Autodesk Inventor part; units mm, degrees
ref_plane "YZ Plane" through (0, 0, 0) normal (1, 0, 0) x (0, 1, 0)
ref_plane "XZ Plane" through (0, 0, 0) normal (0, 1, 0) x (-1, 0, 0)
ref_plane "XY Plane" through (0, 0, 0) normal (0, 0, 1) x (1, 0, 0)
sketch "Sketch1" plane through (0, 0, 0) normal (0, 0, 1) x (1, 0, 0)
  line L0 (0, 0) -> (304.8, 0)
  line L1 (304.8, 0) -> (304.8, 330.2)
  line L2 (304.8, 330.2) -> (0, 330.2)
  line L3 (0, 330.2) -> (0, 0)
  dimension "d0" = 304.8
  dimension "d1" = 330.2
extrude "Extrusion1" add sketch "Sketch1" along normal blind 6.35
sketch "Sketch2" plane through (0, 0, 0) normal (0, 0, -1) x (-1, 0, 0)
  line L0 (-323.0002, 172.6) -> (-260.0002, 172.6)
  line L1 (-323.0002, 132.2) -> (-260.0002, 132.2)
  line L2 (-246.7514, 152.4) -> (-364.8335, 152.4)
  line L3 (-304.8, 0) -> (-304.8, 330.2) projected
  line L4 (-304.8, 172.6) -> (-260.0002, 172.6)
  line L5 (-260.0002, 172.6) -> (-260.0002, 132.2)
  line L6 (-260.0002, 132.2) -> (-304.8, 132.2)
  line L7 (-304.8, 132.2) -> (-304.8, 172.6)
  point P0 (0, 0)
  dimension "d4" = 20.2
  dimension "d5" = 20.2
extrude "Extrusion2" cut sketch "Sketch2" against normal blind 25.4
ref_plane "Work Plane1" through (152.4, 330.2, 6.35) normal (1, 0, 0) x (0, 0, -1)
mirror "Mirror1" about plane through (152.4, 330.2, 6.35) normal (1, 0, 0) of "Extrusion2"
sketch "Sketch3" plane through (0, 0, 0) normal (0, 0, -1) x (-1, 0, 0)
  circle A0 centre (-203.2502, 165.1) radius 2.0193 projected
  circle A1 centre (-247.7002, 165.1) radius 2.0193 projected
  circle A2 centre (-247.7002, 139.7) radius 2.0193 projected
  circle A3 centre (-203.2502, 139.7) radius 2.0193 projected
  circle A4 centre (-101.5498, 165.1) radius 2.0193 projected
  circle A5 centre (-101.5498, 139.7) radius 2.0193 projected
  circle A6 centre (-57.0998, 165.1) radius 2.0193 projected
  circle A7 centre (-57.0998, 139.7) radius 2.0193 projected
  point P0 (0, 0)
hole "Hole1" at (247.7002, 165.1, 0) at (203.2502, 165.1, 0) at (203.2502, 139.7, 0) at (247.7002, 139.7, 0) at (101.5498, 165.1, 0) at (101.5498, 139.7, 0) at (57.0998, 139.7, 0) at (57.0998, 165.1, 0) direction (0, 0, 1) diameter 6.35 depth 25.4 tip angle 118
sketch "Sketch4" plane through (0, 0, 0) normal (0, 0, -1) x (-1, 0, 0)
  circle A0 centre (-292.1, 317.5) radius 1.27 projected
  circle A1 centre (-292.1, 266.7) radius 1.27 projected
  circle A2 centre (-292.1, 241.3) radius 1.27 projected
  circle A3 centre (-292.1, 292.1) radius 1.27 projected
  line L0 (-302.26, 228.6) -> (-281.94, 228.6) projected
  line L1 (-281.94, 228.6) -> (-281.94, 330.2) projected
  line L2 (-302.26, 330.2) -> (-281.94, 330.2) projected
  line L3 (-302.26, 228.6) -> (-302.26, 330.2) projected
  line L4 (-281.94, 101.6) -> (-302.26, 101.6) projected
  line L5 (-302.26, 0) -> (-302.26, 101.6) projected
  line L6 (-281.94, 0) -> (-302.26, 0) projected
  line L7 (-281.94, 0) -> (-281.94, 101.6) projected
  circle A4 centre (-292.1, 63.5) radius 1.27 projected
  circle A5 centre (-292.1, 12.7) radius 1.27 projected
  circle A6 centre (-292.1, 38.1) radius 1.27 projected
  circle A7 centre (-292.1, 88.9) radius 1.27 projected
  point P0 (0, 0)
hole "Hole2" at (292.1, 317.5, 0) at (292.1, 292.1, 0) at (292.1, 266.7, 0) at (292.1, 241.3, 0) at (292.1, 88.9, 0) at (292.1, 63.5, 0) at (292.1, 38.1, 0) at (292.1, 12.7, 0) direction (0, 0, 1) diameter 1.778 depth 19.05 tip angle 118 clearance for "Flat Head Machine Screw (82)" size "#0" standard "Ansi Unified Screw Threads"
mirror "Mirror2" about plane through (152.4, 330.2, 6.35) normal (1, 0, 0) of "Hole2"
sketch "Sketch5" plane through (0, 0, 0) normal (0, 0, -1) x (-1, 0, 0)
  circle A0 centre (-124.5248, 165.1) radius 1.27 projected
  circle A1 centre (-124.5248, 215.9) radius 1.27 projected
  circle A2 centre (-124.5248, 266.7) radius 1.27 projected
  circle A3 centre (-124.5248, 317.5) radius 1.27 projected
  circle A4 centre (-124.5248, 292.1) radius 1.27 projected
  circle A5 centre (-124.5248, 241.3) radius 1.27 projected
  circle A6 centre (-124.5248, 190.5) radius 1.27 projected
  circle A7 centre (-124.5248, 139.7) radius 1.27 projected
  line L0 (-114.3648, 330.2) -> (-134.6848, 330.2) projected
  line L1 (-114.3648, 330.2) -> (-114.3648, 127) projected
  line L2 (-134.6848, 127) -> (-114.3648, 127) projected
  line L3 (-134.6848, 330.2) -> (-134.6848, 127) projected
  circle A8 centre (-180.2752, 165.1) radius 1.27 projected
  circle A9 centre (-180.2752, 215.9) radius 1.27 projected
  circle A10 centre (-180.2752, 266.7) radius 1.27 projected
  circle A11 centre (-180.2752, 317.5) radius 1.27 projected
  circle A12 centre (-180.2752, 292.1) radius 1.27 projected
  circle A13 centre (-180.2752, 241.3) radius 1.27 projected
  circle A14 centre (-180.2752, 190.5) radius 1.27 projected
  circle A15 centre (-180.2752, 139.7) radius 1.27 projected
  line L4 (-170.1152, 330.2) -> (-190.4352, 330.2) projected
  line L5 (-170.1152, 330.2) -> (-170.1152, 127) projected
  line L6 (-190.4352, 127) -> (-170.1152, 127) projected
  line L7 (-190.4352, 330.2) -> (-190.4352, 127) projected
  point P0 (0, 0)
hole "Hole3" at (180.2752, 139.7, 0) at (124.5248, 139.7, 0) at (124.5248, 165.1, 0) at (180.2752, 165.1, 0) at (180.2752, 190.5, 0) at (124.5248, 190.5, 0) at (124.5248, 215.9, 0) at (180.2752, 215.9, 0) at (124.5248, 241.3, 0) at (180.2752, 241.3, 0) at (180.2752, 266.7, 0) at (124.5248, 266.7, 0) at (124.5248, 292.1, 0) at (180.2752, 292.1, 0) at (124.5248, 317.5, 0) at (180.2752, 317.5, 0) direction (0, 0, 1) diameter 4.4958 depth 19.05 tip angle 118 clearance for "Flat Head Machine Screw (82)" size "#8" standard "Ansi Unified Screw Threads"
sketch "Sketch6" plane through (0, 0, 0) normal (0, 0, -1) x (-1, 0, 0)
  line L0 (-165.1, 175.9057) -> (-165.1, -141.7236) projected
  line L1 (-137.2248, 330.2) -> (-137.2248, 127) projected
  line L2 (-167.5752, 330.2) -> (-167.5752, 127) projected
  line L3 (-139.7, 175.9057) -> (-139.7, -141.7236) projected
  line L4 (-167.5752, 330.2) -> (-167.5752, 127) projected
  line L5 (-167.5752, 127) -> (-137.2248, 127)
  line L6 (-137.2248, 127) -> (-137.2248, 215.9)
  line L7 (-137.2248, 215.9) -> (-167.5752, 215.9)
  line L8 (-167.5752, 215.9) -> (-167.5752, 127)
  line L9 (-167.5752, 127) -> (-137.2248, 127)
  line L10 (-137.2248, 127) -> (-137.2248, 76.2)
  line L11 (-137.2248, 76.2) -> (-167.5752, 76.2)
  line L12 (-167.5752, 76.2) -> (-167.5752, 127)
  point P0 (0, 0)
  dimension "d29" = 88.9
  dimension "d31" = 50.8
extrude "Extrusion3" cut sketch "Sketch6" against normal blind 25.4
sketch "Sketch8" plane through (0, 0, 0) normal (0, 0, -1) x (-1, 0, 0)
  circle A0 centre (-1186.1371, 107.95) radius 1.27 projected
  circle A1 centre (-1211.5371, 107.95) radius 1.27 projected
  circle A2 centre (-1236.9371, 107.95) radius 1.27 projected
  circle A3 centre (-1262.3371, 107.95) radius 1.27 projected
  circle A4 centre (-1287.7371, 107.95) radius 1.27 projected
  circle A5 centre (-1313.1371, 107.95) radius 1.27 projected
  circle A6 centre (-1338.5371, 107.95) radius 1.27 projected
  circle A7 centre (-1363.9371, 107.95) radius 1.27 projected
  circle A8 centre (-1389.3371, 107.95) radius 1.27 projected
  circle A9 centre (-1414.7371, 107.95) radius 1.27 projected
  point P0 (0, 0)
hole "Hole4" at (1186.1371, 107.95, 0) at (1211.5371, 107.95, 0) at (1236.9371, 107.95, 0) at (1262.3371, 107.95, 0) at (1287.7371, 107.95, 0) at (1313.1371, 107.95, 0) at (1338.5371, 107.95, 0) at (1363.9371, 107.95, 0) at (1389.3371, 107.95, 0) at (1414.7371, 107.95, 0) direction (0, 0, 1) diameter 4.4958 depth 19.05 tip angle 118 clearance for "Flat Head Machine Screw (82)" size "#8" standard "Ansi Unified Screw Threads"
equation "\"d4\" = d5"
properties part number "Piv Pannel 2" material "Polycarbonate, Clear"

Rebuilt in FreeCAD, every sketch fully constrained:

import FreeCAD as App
import Part
import Sketcher
Q = App.Units.Quantity


def add_polygon(sketch, points):
    """Adds a closed chain of lines whose ends are joined by coincident constraints."""
    first, n = sketch.GeometryCount, len(points)
    for a, b in zip(points, points[1:] + points[:1]):
        sketch.addGeometry(Part.LineSegment(App.Vector(*a, 0), App.Vector(*b, 0)), False)
    for i in range(n):
        sketch.addConstraint(Sketcher.Constraint("Coincident", first + i, 2, first + (i + 1) % n, 1))

doc = App.newDocument("Part")
body = doc.addObject("PartDesign::Body", "Body")

sketch1 = doc.addObject("Sketcher::SketchObject", "Sketch")
body.addObject(sketch1)
sketch1.AttachmentSupport = (doc.XY_Plane, [""])
sketch1.MapMode = "FlatFace"
add_polygon(sketch1, [(0, 330), (0, 0), (305, 0), (305, 330)])
sketch1.addConstraint([
    Sketcher.Constraint("Vertical", 0),
    Sketcher.Constraint("Horizontal", 1),
    Sketcher.Constraint("Vertical", 2),
    Sketcher.Constraint("Horizontal", 3),
    Sketcher.Constraint("Coincident", 0, 2, -1, 1),
    Sketcher.Constraint("DistanceX", 1, 1, 1, 2, Q("12 in")),
    Sketcher.Constraint("DistanceY", 0, 2, 0, 1, Q("13 in")),
])
pad1 = doc.addObject("PartDesign::Pad", "Pad")
body.addObject(pad1)
pad1.Profile = sketch1
pad1.Length = Q("0.25 in")

sketch2 = doc.addObject("Sketcher::SketchObject", "Sketch001")
body.addObject(sketch2)
sketch2.AttachmentSupport = (doc.XY_Plane, [""])
sketch2.MapMode = "FlatFace"
add_polygon(sketch2, [(260, 173), (305, 173), (305, 132), (260, 132)])
sketch2.addConstraint([
    Sketcher.Constraint("Horizontal", 0),
    Sketcher.Constraint("Vertical", 1),
    Sketcher.Constraint("Horizontal", 2),
    Sketcher.Constraint("Vertical", 3),
    Sketcher.Constraint("DistanceX", -1, 1, 0, 2, Q("12 in")),
    Sketcher.Constraint("DistanceX", 0, 1, 0, 2, Q("44.7998 mm")),
    Sketcher.Constraint("DistanceY", 1, 2, 1, 1, Q("40.4 mm")),
    Sketcher.Constraint("DistanceY", -1, 1, 0, 2, Q("172.6 mm")),
])
pocket1 = doc.addObject("PartDesign::Pocket", "Pocket")
body.addObject(pocket1)
pocket1.Profile = sketch2
pocket1.Length = Q("1 in")
pocket1.Reversed = True
doc.recompute()

datumplane = doc.addObject("PartDesign::Plane", "DatumPlane")
body.addObject(datumplane)
datumplane.AttachmentSupport = (doc.YZ_Plane, [""])
datumplane.MapMode = "FlatFace"
datumplane.AttachmentOffset = App.Placement(App.Vector(0, 0, 6 * 25.4), App.Rotation())
mirrored = doc.addObject("PartDesign::Mirrored", "Mirrored")
body.addObject(mirrored)
mirrored.Originals = [pocket1]
mirrored.MirrorPlane = (datumplane, [""])
body.Tip = mirrored

sketch3 = doc.addObject("Sketcher::SketchObject", "Sketch002")
body.addObject(sketch3)
sketch3.AttachmentSupport = (doc.XY_Plane, [""])
sketch3.MapMode = "FlatFace"
sketch3.addGeometry([
    Part.Circle(App.Vector(247.7, 165.1, 0), App.Vector(0, 0, 1), 3.2),
    Part.Circle(App.Vector(203.3, 165.1, 0), App.Vector(0, 0, 1), 3.2),
    Part.Circle(App.Vector(203.3, 139.7, 0), App.Vector(0, 0, 1), 3.2),
    Part.Circle(App.Vector(247.7, 139.7, 0), App.Vector(0, 0, 1), 3.2),
    Part.Circle(App.Vector(101.5, 165.1, 0), App.Vector(0, 0, 1), 3.2),
    Part.Circle(App.Vector(101.5, 139.7, 0), App.Vector(0, 0, 1), 3.2),
    Part.Circle(App.Vector(57.1, 139.7, 0), App.Vector(0, 0, 1), 3.2),
    Part.Circle(App.Vector(57.1, 165.1, 0), App.Vector(0, 0, 1), 3.2),
], False)
sketch3.addConstraint([
    Sketcher.Constraint("Equal", 0, 1),
    Sketcher.Constraint("Equal", 1, 2),
    Sketcher.Constraint("Equal", 2, 3),
    Sketcher.Constraint("Equal", 3, 4),
    Sketcher.Constraint("Equal", 4, 5),
    Sketcher.Constraint("Equal", 5, 6),
    Sketcher.Constraint("Equal", 6, 7),
    Sketcher.Constraint("Horizontal", 0, 3, 1, 3),
    Sketcher.Constraint("Horizontal", 2, 3, 3, 3),
    Sketcher.Constraint("Horizontal", 1, 3, 4, 3),
    Sketcher.Constraint("Horizontal", 3, 3, 5, 3),
    Sketcher.Constraint("Horizontal", 5, 3, 6, 3),
    Sketcher.Constraint("Horizontal", 4, 3, 7, 3),
    Sketcher.Constraint("Vertical", 1, 3, 2, 3),
    Sketcher.Constraint("Vertical", 0, 3, 3, 3),
    Sketcher.Constraint("Vertical", 4, 3, 5, 3),
    Sketcher.Constraint("Vertical", 6, 3, 7, 3),
    Sketcher.Constraint("Diameter", 0, Q("0.25 in")),
    Sketcher.Constraint("DistanceY", 2, 3, 1, 3, Q("1 in")),
    Sketcher.Constraint("DistanceY", -1, 1, 0, 3, Q("6.5 in")),
    Sketcher.Constraint("DistanceX", 1, 3, 0, 3, Q("1.75 in")),
    Sketcher.Constraint("DistanceX", 6, 3, 5, 3, Q("1.75 in")),
    Sketcher.Constraint("DistanceX", -1, 1, 0, 3, Q("247.7002 mm")),
    Sketcher.Constraint("DistanceX", -1, 1, 4, 3, Q("101.5498 mm")),
])
doc.recompute()
hole = doc.addObject("PartDesign::Hole", "Hole")
body.addObject(hole)
hole.Profile = sketch3
hole.ThreadType = "None"
hole.Diameter = Q("0.25 in")
hole.DepthType = "Dimension"
hole.Depth = Q("1 in")
hole.DrillPoint = "Angled"
hole.DrillPointAngle = 118
hole.Reversed = True

sketch4 = doc.addObject("Sketcher::SketchObject", "Sketch003")
body.addObject(sketch4)
sketch4.AttachmentSupport = (doc.XY_Plane, [""])
sketch4.MapMode = "FlatFace"
sketch4.addGeometry([
    Part.Circle(App.Vector(292.1, 317.5, 0), App.Vector(0, 0, 1), 0.9),
    Part.Circle(App.Vector(292.1, 292.1, 0), App.Vector(0, 0, 1), 0.9),
    Part.Circle(App.Vector(292.1, 266.7, 0), App.Vector(0, 0, 1), 0.9),
    Part.Circle(App.Vector(292.1, 241.3, 0), App.Vector(0, 0, 1), 0.9),
    Part.Circle(App.Vector(292.1, 88.9, 0), App.Vector(0, 0, 1), 0.9),
    Part.Circle(App.Vector(292.1, 63.5, 0), App.Vector(0, 0, 1), 0.9),
    Part.Circle(App.Vector(292.1, 38.1, 0), App.Vector(0, 0, 1), 0.9),
    Part.Circle(App.Vector(292.1, 12.7, 0), App.Vector(0, 0, 1), 0.9),
], False)
sketch4.addConstraint([
    Sketcher.Constraint("Equal", 0, 1),
    Sketcher.Constraint("Equal", 1, 2),
    Sketcher.Constraint("Equal", 2, 3),
    Sketcher.Constraint("Equal", 3, 4),
    Sketcher.Constraint("Equal", 4, 5),
    Sketcher.Constraint("Equal", 5, 6),
    Sketcher.Constraint("Equal", 6, 7),
    Sketcher.Constraint("Vertical", 0, 3, 1, 3),
    Sketcher.Constraint("Vertical", 1, 3, 2, 3),
    Sketcher.Constraint("Vertical", 2, 3, 3, 3),
    Sketcher.Constraint("Vertical", 3, 3, 4, 3),
    Sketcher.Constraint("Vertical", 4, 3, 5, 3),
    Sketcher.Constraint("Vertical", 5, 3, 6, 3),
    Sketcher.Constraint("Vertical", 6, 3, 7, 3),
    Sketcher.Constraint("Diameter", 0, Q("0.07 in")),
    Sketcher.Constraint("DistanceY", 1, 3, 0, 3, Q("1 in")),
    Sketcher.Constraint("DistanceY", 2, 3, 1, 3, Q("1 in")),
    Sketcher.Constraint("DistanceY", 3, 3, 2, 3, Q("1 in")),
    Sketcher.Constraint("DistanceY", 4, 3, 3, 3, Q("6 in")),
    Sketcher.Constraint("DistanceY", 5, 3, 4, 3, Q("1 in")),
    Sketcher.Constraint("DistanceY", 6, 3, 5, 3, Q("1 in")),
    Sketcher.Constraint("DistanceY", 7, 3, 6, 3, Q("1 in")),
    Sketcher.Constraint("DistanceX", -1, 1, 0, 3, Q("11.5 in")),
    Sketcher.Constraint("DistanceY", -1, 1, 0, 3, Q("12.5 in")),
])
doc.recompute()
hole2 = doc.addObject("PartDesign::Hole", "Hole001")
body.addObject(hole2)
hole2.Profile = sketch4
hole2.ThreadType = "None"
hole2.Diameter = Q("0.07 in")
hole2.DepthType = "Dimension"
hole2.Depth = Q("0.75 in")
hole2.DrillPoint = "Angled"
hole2.DrillPointAngle = 118
hole2.Reversed = True
doc.recompute()

datumplane2 = doc.addObject("PartDesign::Plane", "DatumPlane001")
body.addObject(datumplane2)
datumplane2.AttachmentSupport = (doc.YZ_Plane, [""])
datumplane2.MapMode = "FlatFace"
datumplane2.AttachmentOffset = App.Placement(App.Vector(0, 0, 6 * 25.4), App.Rotation())
mirrored2 = doc.addObject("PartDesign::Mirrored", "Mirrored001")
body.addObject(mirrored2)
mirrored2.Originals = [hole2]
mirrored2.MirrorPlane = (datumplane2, [""])
body.Tip = mirrored2

sketch5 = doc.addObject("Sketcher::SketchObject", "Sketch004")
body.addObject(sketch5)
sketch5.AttachmentSupport = (doc.XY_Plane, [""])
sketch5.MapMode = "FlatFace"
sketch5.addGeometry([
    Part.Circle(App.Vector(180.3, 139.7, 0), App.Vector(0, 0, 1), 2.2),
    Part.Circle(App.Vector(124.5, 139.7, 0), App.Vector(0, 0, 1), 2.2),
    Part.Circle(App.Vector(124.5, 165.1, 0), App.Vector(0, 0, 1), 2.2),
    Part.Circle(App.Vector(180.3, 165.1, 0), App.Vector(0, 0, 1), 2.2),
    Part.Circle(App.Vector(180.3, 190.5, 0), App.Vector(0, 0, 1), 2.2),
    Part.Circle(App.Vector(124.5, 190.5, 0), App.Vector(0, 0, 1), 2.2),
    Part.Circle(App.Vector(124.5, 215.9, 0), App.Vector(0, 0, 1), 2.2),
    Part.Circle(App.Vector(180.3, 215.9, 0), App.Vector(0, 0, 1), 2.2),
    Part.Circle(App.Vector(124.5, 241.3, 0), App.Vector(0, 0, 1), 2.2),
    Part.Circle(App.Vector(180.3, 241.3, 0), App.Vector(0, 0, 1), 2.2),
    Part.Circle(App.Vector(180.3, 266.7, 0), App.Vector(0, 0, 1), 2.2),
    Part.Circle(App.Vector(124.5, 266.7, 0), App.Vector(0, 0, 1), 2.2),
    Part.Circle(App.Vector(124.5, 292.1, 0), App.Vector(0, 0, 1), 2.2),
    Part.Circle(App.Vector(180.3, 292.1, 0), App.Vector(0, 0, 1), 2.2),
    Part.Circle(App.Vector(124.5, 317.5, 0), App.Vector(0, 0, 1), 2.2),
    Part.Circle(App.Vector(180.3, 317.5, 0), App.Vector(0, 0, 1), 2.2),
], False)
sketch5.addConstraint([
    Sketcher.Constraint("Equal", 0, 1),
    Sketcher.Constraint("Equal", 1, 2),
    Sketcher.Constraint("Equal", 2, 3),
    Sketcher.Constraint("Equal", 3, 4),
    Sketcher.Constraint("Equal", 4, 5),
    Sketcher.Constraint("Equal", 5, 6),
    Sketcher.Constraint("Equal", 6, 7),
    Sketcher.Constraint("Equal", 7, 8),
    Sketcher.Constraint("Equal", 8, 9),
    Sketcher.Constraint("Equal", 9, 10),
    Sketcher.Constraint("Equal", 10, 11),
    Sketcher.Constraint("Equal", 11, 12),
    Sketcher.Constraint("Equal", 12, 13),
    Sketcher.Constraint("Equal", 13, 14),
    Sketcher.Constraint("Equal", 14, 15),
    Sketcher.Constraint("Horizontal", 0, 3, 1, 3),
    Sketcher.Constraint("Horizontal", 2, 3, 3, 3),
    Sketcher.Constraint("Horizontal", 4, 3, 5, 3),
    Sketcher.Constraint("Horizontal", 6, 3, 7, 3),
    Sketcher.Constraint("Horizontal", 8, 3, 9, 3),
    Sketcher.Constraint("Horizontal", 10, 3, 11, 3),
    Sketcher.Constraint("Horizontal", 12, 3, 13, 3),
    Sketcher.Constraint("Horizontal", 14, 3, 15, 3),
    Sketcher.Constraint("Vertical", 1, 3, 2, 3),
    Sketcher.Constraint("Vertical", 0, 3, 3, 3),
    Sketcher.Constraint("Vertical", 3, 3, 4, 3),
    Sketcher.Constraint("Vertical", 2, 3, 5, 3),
    Sketcher.Constraint("Vertical", 5, 3, 6, 3),
    Sketcher.Constraint("Vertical", 4, 3, 7, 3),
    Sketcher.Constraint("Vertical", 6, 3, 8, 3),
    Sketcher.Constraint("Vertical", 7, 3, 9, 3),
    Sketcher.Constraint("Vertical", 9, 3, 10, 3),
    Sketcher.Constraint("Vertical", 8, 3, 11, 3),
    Sketcher.Constraint("Vertical", 11, 3, 12, 3),
    Sketcher.Constraint("Vertical", 10, 3, 13, 3),
    Sketcher.Constraint("Vertical", 12, 3, 14, 3),
    Sketcher.Constraint("Vertical", 13, 3, 15, 3),
    Sketcher.Constraint("Diameter", 0, Q("0.177 in")),
    Sketcher.Constraint("DistanceY", 1, 3, 2, 3, Q("1 in")),
    Sketcher.Constraint("DistanceY", 3, 3, 4, 3, Q("1 in")),
    Sketcher.Constraint("DistanceY", 5, 3, 6, 3, Q("1 in")),
    Sketcher.Constraint("DistanceY", 6, 3, 8, 3, Q("1 in")),
    Sketcher.Constraint("DistanceY", 9, 3, 10, 3, Q("1 in")),
    Sketcher.Constraint("DistanceY", 11, 3, 12, 3, Q("1 in")),
    Sketcher.Constraint("DistanceY", 12, 3, 14, 3, Q("1 in")),
    Sketcher.Constraint("DistanceY", -1, 1, 0, 3, Q("5.5 in")),
    Sketcher.Constraint("DistanceX", 1, 3, 0, 3, Q("2.1949 in")),
    Sketcher.Constraint("DistanceX", -1, 1, 0, 3, Q("180.2752 mm")),
])
doc.recompute()
hole3 = doc.addObject("PartDesign::Hole", "Hole002")
body.addObject(hole3)
hole3.Profile = sketch5
hole3.ThreadType = "None"
hole3.Diameter = Q("0.177 in")
hole3.DepthType = "Dimension"
hole3.Depth = Q("0.75 in")
hole3.DrillPoint = "Angled"
hole3.DrillPointAngle = 118
hole3.Reversed = True

sketch6 = doc.addObject("Sketcher::SketchObject", "Sketch005")
body.addObject(sketch6)
sketch6.AttachmentSupport = (doc.XY_Plane, [""])
sketch6.MapMode = "FlatFace"
add_polygon(sketch6, [(137, 76), (137, 216), (168, 216), (168, 76)])
sketch6.addConstraint([
    Sketcher.Constraint("Vertical", 0),
    Sketcher.Constraint("Horizontal", 1),
    Sketcher.Constraint("Vertical", 2),
    Sketcher.Constraint("Horizontal", 3),
    Sketcher.Constraint("DistanceY", 0, 1, 0, 2, Q("5.5 in")),
    Sketcher.Constraint("DistanceY", -1, 1, 2, 2, Q("3 in")),
    Sketcher.Constraint("DistanceX", 1, 1, 1, 2, Q("1.1949 in")),
    Sketcher.Constraint("DistanceX", -1, 1, 0, 2, Q("137.2248 mm")),
])
pocket2 = doc.addObject("PartDesign::Pocket", "Pocket001")
body.addObject(pocket2)
pocket2.Profile = sketch6
pocket2.Length = Q("1 in")
pocket2.Reversed = True

sketch7 = doc.addObject("Sketcher::SketchObject", "Sketch006")
body.addObject(sketch7)
sketch7.AttachmentSupport = (doc.XY_Plane, [""])
sketch7.MapMode = "FlatFace"
sketch7.addGeometry([
    Part.Circle(App.Vector(1186.1, 108, 0), App.Vector(0, 0, 1), 2.2),
    Part.Circle(App.Vector(1211.5, 108, 0), App.Vector(0, 0, 1), 2.2),
    Part.Circle(App.Vector(1236.9, 108, 0), App.Vector(0, 0, 1), 2.2),
    Part.Circle(App.Vector(1262.3, 108, 0), App.Vector(0, 0, 1), 2.2),
    Part.Circle(App.Vector(1287.7, 108, 0), App.Vector(0, 0, 1), 2.2),
    Part.Circle(App.Vector(1313.1, 108, 0), App.Vector(0, 0, 1), 2.2),
    Part.Circle(App.Vector(1338.5, 108, 0), App.Vector(0, 0, 1), 2.2),
    Part.Circle(App.Vector(1363.9, 108, 0), App.Vector(0, 0, 1), 2.2),
    Part.Circle(App.Vector(1389.3, 108, 0), App.Vector(0, 0, 1), 2.2),
    Part.Circle(App.Vector(1414.7, 108, 0), App.Vector(0, 0, 1), 2.2),
], False)
sketch7.addConstraint([
    Sketcher.Constraint("Equal", 0, 1),
    Sketcher.Constraint("Equal", 1, 2),
    Sketcher.Constraint("Equal", 2, 3),
    Sketcher.Constraint("Equal", 3, 4),
    Sketcher.Constraint("Equal", 4, 5),
    Sketcher.Constraint("Equal", 5, 6),
    Sketcher.Constraint("Equal", 6, 7),
    Sketcher.Constraint("Equal", 7, 8),
    Sketcher.Constraint("Equal", 8, 9),
    Sketcher.Constraint("Horizontal", 0, 3, 1, 3),
    Sketcher.Constraint("Horizontal", 1, 3, 2, 3),
    Sketcher.Constraint("Horizontal", 2, 3, 3, 3),
    Sketcher.Constraint("Horizontal", 3, 3, 4, 3),
    Sketcher.Constraint("Horizontal", 4, 3, 5, 3),
    Sketcher.Constraint("Horizontal", 5, 3, 6, 3),
    Sketcher.Constraint("Horizontal", 6, 3, 7, 3),
    Sketcher.Constraint("Horizontal", 7, 3, 8, 3),
    Sketcher.Constraint("Horizontal", 8, 3, 9, 3),
    Sketcher.Constraint("Diameter", 0, Q("0.177 in")),
    Sketcher.Constraint("DistanceX", 0, 3, 1, 3, Q("1 in")),
    Sketcher.Constraint("DistanceX", 1, 3, 2, 3, Q("1 in")),
    Sketcher.Constraint("DistanceX", 2, 3, 3, 3, Q("1 in")),
    Sketcher.Constraint("DistanceX", 3, 3, 4, 3, Q("1 in")),
    Sketcher.Constraint("DistanceX", 4, 3, 5, 3, Q("1 in")),
    Sketcher.Constraint("DistanceX", 5, 3, 6, 3, Q("1 in")),
    Sketcher.Constraint("DistanceX", 6, 3, 7, 3, Q("1 in")),
    Sketcher.Constraint("DistanceX", 7, 3, 8, 3, Q("1 in")),
    Sketcher.Constraint("DistanceX", 8, 3, 9, 3, Q("1 in")),
    Sketcher.Constraint("DistanceY", -1, 1, 0, 3, Q("4.25 in")),
    Sketcher.Constraint("DistanceX", -1, 1, 0, 3, Q("46.6983 in")),
])
doc.recompute()
hole4 = doc.addObject("PartDesign::Hole", "Hole003")
body.addObject(hole4)
hole4.Profile = sketch7
hole4.ThreadType = "None"
hole4.Diameter = Q("0.177 in")
hole4.DepthType = "Dimension"
hole4.Depth = Q("0.75 in")
hole4.DrillPoint = "Angled"
hole4.DrillPointAngle = 118
hole4.Reversed = True

doc.recompute()
